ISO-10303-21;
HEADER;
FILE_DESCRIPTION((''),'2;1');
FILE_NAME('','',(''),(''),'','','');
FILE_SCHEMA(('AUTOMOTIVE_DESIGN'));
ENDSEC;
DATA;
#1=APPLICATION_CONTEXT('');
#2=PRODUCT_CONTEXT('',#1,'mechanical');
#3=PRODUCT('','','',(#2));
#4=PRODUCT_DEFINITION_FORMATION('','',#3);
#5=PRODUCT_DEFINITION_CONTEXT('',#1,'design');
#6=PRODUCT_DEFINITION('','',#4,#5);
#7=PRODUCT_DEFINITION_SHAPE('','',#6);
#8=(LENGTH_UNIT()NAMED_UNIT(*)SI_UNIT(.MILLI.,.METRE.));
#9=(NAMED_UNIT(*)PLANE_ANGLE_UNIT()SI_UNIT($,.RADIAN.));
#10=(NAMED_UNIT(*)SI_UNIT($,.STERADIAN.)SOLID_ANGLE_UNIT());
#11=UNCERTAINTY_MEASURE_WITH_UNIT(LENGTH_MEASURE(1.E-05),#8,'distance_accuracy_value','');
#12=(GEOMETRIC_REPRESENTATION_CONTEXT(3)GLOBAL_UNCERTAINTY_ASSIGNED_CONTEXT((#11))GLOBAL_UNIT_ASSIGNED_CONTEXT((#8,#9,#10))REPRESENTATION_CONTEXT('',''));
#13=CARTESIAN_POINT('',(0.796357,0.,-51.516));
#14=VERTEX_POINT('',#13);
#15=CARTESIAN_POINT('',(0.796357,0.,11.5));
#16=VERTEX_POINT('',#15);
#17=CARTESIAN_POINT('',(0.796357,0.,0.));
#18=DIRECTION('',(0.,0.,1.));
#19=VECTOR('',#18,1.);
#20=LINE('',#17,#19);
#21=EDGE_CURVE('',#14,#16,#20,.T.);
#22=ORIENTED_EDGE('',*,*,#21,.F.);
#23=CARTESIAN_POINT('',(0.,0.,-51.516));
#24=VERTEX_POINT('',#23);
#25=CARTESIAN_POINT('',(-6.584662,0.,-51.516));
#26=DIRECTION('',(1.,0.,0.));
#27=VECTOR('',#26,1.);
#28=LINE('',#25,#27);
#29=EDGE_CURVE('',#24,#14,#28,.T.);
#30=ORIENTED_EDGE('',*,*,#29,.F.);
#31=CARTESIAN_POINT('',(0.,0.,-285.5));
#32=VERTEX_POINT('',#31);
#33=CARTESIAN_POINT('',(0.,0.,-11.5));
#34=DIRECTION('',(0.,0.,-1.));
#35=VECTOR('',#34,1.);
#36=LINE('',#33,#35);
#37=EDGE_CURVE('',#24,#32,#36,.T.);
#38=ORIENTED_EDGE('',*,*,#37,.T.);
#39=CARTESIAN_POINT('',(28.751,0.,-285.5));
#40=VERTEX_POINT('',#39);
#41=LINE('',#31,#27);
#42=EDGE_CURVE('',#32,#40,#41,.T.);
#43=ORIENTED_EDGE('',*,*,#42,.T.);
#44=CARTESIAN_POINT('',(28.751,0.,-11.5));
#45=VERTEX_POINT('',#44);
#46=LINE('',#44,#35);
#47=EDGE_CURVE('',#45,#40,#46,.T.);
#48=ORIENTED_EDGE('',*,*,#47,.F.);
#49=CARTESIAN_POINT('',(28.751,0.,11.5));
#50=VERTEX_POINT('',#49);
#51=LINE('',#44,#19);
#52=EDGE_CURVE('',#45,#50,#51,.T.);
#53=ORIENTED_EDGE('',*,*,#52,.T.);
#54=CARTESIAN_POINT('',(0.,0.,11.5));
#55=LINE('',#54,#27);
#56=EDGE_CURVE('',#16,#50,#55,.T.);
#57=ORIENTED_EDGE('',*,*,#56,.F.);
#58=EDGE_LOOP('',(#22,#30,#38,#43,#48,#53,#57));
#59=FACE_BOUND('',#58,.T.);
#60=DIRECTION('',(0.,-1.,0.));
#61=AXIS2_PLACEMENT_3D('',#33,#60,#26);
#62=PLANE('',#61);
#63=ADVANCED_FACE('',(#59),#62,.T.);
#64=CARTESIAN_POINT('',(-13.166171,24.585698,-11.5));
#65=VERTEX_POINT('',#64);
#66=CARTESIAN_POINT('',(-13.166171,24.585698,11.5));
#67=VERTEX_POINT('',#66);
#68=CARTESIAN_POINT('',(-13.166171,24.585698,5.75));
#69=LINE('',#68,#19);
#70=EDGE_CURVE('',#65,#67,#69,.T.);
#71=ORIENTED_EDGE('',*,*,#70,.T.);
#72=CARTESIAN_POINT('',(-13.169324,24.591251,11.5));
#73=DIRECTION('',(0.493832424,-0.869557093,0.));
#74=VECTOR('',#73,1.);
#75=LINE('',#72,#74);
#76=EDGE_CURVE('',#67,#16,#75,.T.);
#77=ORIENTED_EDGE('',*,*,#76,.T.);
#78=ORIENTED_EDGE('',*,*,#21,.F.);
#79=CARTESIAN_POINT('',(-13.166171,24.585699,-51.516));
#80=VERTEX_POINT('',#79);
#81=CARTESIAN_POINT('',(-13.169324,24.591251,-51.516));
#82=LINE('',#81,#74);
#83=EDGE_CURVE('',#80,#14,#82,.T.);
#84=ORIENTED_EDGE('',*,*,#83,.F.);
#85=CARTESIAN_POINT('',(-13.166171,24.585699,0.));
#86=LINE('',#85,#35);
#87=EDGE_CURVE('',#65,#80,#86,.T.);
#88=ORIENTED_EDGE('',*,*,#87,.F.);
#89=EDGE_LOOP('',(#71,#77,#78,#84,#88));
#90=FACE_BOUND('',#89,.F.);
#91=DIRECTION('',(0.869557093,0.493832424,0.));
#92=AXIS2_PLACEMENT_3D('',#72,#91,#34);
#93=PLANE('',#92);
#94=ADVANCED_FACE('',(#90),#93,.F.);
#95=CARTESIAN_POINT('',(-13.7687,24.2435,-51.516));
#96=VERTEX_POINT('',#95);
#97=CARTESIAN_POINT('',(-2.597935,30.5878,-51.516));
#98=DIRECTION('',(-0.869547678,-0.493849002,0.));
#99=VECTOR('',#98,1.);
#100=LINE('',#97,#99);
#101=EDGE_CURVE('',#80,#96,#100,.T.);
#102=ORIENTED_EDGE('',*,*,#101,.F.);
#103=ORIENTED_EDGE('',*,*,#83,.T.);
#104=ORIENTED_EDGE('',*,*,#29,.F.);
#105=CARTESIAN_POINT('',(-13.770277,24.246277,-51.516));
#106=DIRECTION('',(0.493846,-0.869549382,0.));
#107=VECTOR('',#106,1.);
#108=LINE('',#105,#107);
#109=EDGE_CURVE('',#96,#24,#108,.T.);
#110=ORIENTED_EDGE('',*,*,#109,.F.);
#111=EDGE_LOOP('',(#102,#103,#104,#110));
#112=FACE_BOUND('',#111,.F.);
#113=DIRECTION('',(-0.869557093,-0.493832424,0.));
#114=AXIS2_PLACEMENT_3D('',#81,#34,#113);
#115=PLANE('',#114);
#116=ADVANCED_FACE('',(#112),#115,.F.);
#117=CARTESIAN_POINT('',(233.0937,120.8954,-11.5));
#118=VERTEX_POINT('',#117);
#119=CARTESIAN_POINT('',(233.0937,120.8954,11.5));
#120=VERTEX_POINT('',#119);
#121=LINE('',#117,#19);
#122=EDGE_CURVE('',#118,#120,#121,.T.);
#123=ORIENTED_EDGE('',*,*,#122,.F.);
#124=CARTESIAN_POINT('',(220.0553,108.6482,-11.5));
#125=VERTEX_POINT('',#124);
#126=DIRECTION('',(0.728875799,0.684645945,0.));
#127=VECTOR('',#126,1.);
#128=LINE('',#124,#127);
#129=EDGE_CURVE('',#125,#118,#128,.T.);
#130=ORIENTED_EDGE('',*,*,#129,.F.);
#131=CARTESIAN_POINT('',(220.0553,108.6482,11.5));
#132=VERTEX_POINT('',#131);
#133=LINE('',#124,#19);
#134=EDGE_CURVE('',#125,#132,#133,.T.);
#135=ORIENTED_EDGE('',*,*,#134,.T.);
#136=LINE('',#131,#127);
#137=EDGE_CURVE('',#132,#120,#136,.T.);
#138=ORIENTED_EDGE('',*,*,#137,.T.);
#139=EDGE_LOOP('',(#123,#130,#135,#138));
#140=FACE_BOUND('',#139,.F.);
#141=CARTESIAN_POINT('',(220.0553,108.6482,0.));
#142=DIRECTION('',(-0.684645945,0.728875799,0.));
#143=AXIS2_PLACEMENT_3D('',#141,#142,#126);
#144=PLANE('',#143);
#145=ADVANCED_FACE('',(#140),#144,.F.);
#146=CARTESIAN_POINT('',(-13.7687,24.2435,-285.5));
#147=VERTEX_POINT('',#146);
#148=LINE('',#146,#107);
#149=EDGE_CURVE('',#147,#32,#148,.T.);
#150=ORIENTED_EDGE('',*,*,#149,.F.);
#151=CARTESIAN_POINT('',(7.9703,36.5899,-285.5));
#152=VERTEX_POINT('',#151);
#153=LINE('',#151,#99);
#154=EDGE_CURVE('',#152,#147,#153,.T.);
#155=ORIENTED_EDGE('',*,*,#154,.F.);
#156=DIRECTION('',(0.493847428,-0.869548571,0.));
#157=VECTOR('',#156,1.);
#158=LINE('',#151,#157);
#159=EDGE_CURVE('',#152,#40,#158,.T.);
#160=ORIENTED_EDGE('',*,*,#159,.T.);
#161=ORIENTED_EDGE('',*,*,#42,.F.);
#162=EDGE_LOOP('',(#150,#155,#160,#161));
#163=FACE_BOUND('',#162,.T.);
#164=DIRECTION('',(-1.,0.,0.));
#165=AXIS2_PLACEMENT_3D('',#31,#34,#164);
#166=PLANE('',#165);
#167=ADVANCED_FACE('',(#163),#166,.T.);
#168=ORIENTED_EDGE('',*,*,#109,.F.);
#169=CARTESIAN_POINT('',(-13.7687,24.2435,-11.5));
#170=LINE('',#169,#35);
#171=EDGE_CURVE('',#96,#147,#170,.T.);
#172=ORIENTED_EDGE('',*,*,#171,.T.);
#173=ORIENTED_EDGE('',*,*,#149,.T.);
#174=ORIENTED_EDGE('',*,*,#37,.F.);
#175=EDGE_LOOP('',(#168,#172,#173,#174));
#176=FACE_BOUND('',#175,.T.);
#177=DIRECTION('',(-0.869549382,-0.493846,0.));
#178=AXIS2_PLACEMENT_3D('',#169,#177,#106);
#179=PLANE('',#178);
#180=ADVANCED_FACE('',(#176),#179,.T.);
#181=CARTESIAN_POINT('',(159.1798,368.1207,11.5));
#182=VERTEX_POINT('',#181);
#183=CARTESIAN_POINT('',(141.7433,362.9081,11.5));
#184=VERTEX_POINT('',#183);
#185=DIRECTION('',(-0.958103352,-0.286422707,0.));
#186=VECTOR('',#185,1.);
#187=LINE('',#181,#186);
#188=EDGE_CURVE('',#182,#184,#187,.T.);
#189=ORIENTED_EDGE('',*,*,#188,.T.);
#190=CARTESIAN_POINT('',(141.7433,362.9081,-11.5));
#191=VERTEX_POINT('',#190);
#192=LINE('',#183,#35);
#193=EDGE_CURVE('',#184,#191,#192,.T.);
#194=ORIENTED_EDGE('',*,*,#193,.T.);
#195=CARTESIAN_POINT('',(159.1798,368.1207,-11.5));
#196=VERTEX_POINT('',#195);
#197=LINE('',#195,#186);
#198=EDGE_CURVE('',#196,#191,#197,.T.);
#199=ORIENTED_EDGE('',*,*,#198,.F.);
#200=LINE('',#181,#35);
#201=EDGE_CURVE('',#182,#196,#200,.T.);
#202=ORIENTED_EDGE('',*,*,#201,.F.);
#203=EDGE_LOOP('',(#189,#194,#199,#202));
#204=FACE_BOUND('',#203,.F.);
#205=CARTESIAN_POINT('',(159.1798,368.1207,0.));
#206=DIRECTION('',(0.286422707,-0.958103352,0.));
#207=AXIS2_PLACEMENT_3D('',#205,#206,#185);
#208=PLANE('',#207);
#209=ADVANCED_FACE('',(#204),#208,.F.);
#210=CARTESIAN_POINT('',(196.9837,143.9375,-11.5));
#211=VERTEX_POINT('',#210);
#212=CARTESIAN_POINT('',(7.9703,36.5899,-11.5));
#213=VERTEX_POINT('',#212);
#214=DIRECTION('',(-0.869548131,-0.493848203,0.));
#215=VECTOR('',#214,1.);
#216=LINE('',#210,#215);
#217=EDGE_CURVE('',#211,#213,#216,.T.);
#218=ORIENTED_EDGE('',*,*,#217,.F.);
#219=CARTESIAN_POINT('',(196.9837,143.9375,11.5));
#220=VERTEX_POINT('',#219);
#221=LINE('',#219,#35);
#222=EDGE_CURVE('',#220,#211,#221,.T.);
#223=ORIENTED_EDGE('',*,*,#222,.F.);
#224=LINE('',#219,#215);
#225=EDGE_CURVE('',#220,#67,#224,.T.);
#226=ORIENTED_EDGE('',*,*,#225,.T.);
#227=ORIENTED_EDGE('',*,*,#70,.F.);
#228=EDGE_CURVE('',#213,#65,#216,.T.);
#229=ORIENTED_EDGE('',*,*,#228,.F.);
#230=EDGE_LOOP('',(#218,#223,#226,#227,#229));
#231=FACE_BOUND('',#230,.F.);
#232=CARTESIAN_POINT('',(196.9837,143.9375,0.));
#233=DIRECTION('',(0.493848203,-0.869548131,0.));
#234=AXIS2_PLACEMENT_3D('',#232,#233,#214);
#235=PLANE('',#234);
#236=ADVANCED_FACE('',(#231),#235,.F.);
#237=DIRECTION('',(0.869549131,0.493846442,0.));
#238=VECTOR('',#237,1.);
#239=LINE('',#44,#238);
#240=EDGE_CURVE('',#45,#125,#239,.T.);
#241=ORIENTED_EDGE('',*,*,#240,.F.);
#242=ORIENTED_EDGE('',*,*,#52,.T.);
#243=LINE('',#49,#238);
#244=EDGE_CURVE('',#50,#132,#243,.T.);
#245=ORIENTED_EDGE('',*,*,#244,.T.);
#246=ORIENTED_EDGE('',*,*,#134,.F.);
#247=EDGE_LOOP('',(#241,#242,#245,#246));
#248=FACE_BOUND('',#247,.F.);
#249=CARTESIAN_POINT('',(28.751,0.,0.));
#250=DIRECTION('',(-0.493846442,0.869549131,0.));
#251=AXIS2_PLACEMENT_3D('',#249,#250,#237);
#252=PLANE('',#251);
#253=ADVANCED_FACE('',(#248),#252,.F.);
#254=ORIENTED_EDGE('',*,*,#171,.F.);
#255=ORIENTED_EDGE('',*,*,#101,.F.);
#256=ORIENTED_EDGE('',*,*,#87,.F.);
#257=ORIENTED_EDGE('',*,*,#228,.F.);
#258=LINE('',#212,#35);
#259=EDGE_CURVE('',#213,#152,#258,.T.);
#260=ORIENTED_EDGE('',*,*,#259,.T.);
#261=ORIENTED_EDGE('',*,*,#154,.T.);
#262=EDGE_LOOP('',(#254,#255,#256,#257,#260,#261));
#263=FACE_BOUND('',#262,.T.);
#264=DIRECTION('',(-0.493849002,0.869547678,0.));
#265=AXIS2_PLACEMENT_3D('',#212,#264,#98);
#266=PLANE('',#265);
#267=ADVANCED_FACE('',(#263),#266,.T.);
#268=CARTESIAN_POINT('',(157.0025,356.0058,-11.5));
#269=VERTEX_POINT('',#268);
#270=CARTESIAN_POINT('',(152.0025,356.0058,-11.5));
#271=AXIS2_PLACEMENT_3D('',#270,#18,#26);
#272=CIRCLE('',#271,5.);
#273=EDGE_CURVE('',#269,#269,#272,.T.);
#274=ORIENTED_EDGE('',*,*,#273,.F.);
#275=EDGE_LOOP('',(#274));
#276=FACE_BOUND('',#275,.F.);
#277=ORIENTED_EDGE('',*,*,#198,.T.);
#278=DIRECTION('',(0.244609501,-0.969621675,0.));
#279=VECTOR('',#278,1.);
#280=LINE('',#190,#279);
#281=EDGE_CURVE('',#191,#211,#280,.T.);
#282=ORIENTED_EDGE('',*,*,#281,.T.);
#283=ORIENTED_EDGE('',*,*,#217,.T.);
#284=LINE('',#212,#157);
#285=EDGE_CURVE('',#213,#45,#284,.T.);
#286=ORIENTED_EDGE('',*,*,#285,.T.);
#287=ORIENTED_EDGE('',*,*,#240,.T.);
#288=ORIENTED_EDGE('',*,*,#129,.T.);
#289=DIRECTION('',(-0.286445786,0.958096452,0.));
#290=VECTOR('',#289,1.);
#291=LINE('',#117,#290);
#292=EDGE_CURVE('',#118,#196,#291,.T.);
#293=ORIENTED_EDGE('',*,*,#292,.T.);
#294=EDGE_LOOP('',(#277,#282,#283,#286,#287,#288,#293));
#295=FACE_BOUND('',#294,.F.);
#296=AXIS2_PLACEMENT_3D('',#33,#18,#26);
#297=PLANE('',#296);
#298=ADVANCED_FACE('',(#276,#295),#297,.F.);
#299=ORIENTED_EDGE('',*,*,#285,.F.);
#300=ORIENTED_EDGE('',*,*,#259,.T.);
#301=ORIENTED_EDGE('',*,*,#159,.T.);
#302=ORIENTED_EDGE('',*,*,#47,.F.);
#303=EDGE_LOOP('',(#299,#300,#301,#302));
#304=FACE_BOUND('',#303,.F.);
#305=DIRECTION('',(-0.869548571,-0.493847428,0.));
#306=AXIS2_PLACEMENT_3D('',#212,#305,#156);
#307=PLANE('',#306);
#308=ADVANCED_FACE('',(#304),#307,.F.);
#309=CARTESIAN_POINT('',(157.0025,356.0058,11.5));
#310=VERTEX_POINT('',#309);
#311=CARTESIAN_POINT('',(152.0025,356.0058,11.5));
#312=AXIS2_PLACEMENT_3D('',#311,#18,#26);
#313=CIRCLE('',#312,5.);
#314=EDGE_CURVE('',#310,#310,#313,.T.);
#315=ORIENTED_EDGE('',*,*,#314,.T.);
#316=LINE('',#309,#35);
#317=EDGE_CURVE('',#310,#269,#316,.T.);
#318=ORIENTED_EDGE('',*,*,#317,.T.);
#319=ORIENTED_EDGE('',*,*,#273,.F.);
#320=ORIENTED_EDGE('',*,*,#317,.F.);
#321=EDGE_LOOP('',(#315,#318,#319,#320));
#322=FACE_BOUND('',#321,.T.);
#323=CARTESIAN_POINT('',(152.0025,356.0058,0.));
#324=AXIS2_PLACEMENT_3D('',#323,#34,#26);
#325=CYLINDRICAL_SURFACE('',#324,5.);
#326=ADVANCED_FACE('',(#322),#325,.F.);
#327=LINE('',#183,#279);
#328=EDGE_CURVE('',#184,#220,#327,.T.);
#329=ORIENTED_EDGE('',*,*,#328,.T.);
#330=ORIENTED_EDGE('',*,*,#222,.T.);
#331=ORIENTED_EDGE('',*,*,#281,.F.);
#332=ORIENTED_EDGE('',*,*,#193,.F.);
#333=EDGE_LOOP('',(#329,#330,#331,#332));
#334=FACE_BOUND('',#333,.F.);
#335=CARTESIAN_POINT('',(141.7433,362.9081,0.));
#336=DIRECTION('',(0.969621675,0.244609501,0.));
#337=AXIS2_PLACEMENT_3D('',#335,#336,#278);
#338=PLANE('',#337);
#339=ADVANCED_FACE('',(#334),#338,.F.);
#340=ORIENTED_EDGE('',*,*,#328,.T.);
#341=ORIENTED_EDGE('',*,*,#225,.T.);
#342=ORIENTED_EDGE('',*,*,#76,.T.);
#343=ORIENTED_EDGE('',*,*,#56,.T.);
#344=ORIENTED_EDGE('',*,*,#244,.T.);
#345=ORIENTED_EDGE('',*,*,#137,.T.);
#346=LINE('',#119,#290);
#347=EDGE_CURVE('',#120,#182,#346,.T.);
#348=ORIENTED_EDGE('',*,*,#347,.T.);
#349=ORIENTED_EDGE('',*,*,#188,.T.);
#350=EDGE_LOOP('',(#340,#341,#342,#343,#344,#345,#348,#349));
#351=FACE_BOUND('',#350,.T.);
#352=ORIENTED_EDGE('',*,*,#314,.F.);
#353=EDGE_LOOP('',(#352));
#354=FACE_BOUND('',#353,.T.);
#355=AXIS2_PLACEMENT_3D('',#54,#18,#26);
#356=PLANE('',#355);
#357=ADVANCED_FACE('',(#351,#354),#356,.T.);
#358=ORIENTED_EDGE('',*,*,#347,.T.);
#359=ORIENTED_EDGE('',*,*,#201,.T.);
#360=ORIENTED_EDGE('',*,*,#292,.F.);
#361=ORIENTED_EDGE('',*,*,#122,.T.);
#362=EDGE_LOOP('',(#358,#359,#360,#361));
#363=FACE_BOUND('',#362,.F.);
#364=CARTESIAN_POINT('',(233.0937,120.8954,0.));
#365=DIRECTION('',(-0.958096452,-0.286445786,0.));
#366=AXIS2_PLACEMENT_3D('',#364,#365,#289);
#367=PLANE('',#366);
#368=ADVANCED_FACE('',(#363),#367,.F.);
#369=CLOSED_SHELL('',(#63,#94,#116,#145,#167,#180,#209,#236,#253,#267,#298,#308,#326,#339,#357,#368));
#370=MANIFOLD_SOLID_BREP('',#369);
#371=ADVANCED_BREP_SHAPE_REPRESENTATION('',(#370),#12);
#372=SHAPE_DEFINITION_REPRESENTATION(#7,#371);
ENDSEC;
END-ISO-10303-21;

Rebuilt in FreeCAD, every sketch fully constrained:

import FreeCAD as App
import Part
import Sketcher
from FreeCAD import Vector
Q = App.Units.Quantity


def add_polygon(sketch, points):
    """Adds a closed chain of lines whose ends are joined by coincident constraints."""
    first, n = sketch.GeometryCount, len(points)
    for a, b in zip(points, points[1:] + points[:1]):
        sketch.addGeometry(Part.LineSegment(App.Vector(*a, 0), App.Vector(*b, 0)), False)
    for i in range(n):
        sketch.addConstraint(Sketcher.Constraint("Coincident", first + i, 2, first + (i + 1) % n, 1))

doc = App.newDocument("Part")
body = doc.addObject("PartDesign::Body", "Body")

# Sketch on XY plane
sketch1 = doc.addObject("Sketcher::SketchObject", "Sketch")
body.addObject(sketch1)
sketch1.AttachmentSupport = (doc.XY_Plane, [""])
sketch1.MapMode = "FlatFace"
add_polygon(sketch1, [(0, 0), (28.751, 0), (220.0553, 108.6482), (233.0937, 120.8954), (159.1798, 368.1207), (141.7433, 362.9081), (196.9837, 143.9375), (-13.7687, 24.2435)])  # lines 0-7
sketch1.addGeometry(Part.Circle(Vector(152.0025, 356.0058, 0), Vector(0, 0, 1), 5), False)  # 8
sketch1.addConstraint([
    Sketcher.Constraint("Horizontal", 0),
    Sketcher.Constraint("Coincident", 7, 2, -1, 1),
    Sketcher.Constraint("Perpendicular", 3, 4),
    Sketcher.Constraint("Parallel", 1, 6),
    Sketcher.Constraint("Perpendicular", 6, 7),
    Sketcher.Constraint("Diameter", 8, Q("10 mm")),
    Sketcher.Constraint("Distance", 6, Q("242.37 mm")),
    Sketcher.Constraint("DistanceX", 0, 1, 0, 2, Q("28.751 mm")),
    Sketcher.Constraint("Distance", 1, Q("220.004 mm")),
    Sketcher.Constraint("Distance", 3, Q("258.038 mm")),
    Sketcher.Constraint("Distance", 4, Q("18.199 mm")),
    Sketcher.Constraint("Distance", 5, Q("225.831 mm")),
    Sketcher.Constraint("DistanceX", -1, 1, 8, 3, Q("152.0025 mm")),
    Sketcher.Constraint("DistanceY", -1, 1, 8, 3, Q("356.0058 mm")),
    Sketcher.Constraint("DistanceX", -1, 1, 1, 2, Q("220.0553 mm")),
    Sketcher.Constraint("DistanceX", -1, 1, 2, 2, Q("233.0937 mm")),
    Sketcher.Constraint("DistanceY", -1, 1, 2, 2, Q("120.8954 mm")),
    Sketcher.Constraint("DistanceX", -1, 1, 3, 2, Q("159.1798 mm")),
])
pad1 = doc.addObject("PartDesign::Pad", "Pad")
body.addObject(pad1)
pad1.Profile = sketch1
pad1.Length = 23
pad1.Midplane = True

# Sketch on XY plane
sketch2 = doc.addObject("Sketcher::SketchObject", "Sketch001")
body.addObject(sketch2)
sketch2.AttachmentSupport = (doc.XY_Plane, [""])
sketch2.MapMode = "FlatFace"
sketch2.AttachmentOffset = App.Placement(Vector(0, 0, -11.5), App.Rotation())
add_polygon(sketch2, [(-13.7687, 24.2435), (7.9703, 36.5899), (28.751, 0), (-0.000008, -0.000004)])  # lines 0-3
sketch2.addConstraint([
    Sketcher.Constraint("Horizontal", 2),
    Sketcher.Constraint("Coincident", 2, 2, -1, 1),
    Sketcher.Constraint("Perpendicular", 0, 1),
    Sketcher.Constraint("Parallel", 1, 3),
    Sketcher.Constraint("DistanceX", 2, 2, 2, 1, Q("28.751 mm")),
    Sketcher.Constraint("DistanceY", -1, 1, 0, 2, Q("36.59 mm")),
    Sketcher.Constraint("DistanceX", 3, 2, 0, 2, Q("21.739 mm")),
])
pad2 = doc.addObject("PartDesign::Pad", "Pad001")
body.addObject(pad2)
pad2.Profile = sketch2
pad2.Length = 274
pad2.Reversed = True

# Sketch on an angled plane
sketch3 = doc.addObject("Sketcher::SketchObject", "Sketch002")
body.addObject(sketch3)
sketch3.Placement = App.Placement(Vector(196.9837, 143.9375, 11.5), App.Rotation(Vector(0.869557093, 0.493832424, 0), Vector(0, 0, -1.000000001), Vector(-0.493832424, 0.869557093, 0), "ZXY"))
add_polygon(sketch3, [(-242.3701, 63.016), (-242.3701, 0), (-241.6771, 0), (-241.6771, 63.016)])  # lines 0-3
sketch3.addConstraint([
    Sketcher.Constraint("Vertical", 0),
    Sketcher.Constraint("Horizontal", 1),
    Sketcher.Constraint("Vertical", 2),
    Sketcher.Constraint("Horizontal", 3),
    Sketcher.Constraint("PointOnObject", 0, 2, -1),
    Sketcher.Constraint("DistanceX", 1, 1, 1, 2, Q("0.693 mm")),
    Sketcher.Constraint("DistanceY", 0, 2, 0, 1, Q("63.016 mm")),
    Sketcher.Constraint("DistanceX", 0, 2, -1, 1, Q("242.37 mm")),
])
pocket1 = doc.addObject("PartDesign::Pocket", "Pocket")
body.addObject(pocket1)
pocket1.Profile = sketch3
pocket1.Length = 274

doc.recompute()
